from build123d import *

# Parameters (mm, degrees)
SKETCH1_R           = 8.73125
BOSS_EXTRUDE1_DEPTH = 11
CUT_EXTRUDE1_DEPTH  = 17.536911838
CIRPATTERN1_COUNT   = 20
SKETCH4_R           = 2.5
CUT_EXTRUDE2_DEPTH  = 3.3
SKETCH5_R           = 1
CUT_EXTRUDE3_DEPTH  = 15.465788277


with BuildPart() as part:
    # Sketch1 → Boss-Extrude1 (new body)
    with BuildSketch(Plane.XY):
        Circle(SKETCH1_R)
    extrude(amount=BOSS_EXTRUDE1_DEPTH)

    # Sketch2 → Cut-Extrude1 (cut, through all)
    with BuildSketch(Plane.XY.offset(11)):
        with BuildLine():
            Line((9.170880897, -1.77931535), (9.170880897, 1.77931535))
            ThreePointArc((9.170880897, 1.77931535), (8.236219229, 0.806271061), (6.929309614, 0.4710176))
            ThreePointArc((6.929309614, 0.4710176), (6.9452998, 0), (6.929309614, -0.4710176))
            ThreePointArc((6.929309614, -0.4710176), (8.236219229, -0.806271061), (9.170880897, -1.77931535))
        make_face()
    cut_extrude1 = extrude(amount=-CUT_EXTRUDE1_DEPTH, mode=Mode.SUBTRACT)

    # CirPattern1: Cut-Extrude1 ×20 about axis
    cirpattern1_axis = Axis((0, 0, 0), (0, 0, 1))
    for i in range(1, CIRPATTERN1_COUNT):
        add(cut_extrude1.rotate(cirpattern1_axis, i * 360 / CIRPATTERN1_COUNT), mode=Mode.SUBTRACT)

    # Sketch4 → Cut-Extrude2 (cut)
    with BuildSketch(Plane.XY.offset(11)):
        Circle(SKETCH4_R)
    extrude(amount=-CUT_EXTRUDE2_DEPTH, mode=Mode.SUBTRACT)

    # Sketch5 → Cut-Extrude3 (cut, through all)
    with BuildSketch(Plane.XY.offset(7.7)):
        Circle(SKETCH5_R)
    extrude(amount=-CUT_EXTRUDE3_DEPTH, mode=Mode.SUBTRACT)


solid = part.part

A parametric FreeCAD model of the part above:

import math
import FreeCAD as App
import Part
import Sketcher
Q = App.Units.Quantity

doc = App.newDocument("Part")
params = doc.addObject("Spreadsheet::Sheet", "Params")
for row, (alias, value) in enumerate([
    ("pad1_length", "11 mm"),
    ("sketch3_diameter", "5 mm"),
    ("pocket2_length", "3.3 mm"),
    ("sketch4_diameter", "2 mm"),
], start=1):
    params.set(f"A{row}", alias)
    params.set(f"B{row}", "=" + value)
    params.setAlias(f"B{row}", alias)

body = doc.addObject("PartDesign::Body", "Body")

# Sketch on XY plane
sketch1 = body.newObject("Sketcher::SketchObject", "Sketch")
sketch1.AttachmentSupport = (doc.getObject("XY_Plane"), [""])
sketch1.MapMode = "FlatFace"
sketch1.addGeometry(Part.Circle(App.Vector(0, 0, 0), App.Vector(0, 0, 1), 9), False)
sketch1.addConstraint([
    Sketcher.Constraint("Coincident", 0, 3, -1, 1),
    Sketcher.Constraint("Diameter", 0, Q("17.4625 mm")),
])
pad1 = body.newObject("PartDesign::Pad", "Pad")
pad1.Profile = sketch1
pad1.setExpression("Length", "Params.pad1_length")

# Sketch on XY plane
sketch2 = body.newObject("Sketcher::SketchObject", "Sketch001")
sketch2.AttachmentSupport = (doc.getObject("XY_Plane"), [""])
sketch2.MapMode = "FlatFace"
sketch2.AttachmentOffset = App.Placement(App.Vector(0, 0, 11), App.Rotation())
sketch2.addGeometry([
    Part.LineSegment(App.Vector(9.2, -1.8, 0), App.Vector(9.2, 1.8, 0)),
    Part.ArcOfCircle(Part.Circle(App.Vector(7, 2.9, 0), App.Vector(0, 0, 1), 2.5), math.radians(-91), math.radians(-28)),
    Part.ArcOfCircle(Part.Circle(App.Vector(0, 0, 0), App.Vector(0, 0, 1), 6.9), math.radians(-3.89), math.radians(3.89)),
    Part.ArcOfCircle(Part.Circle(App.Vector(7, -2.9, 0), App.Vector(0, 0, 1), 2.5), math.radians(28), math.radians(91)),
], False)
sketch2.addConstraint([
    Sketcher.Constraint("Coincident", 0, 2, 1, 2),
    Sketcher.Constraint("Coincident", 1, 1, 2, 2),
    Sketcher.Constraint("Coincident", 2, 1, 3, 2),
    Sketcher.Constraint("Coincident", 3, 1, 0, 1),
    Sketcher.Constraint("Vertical", 0),
    Sketcher.Constraint("Coincident", 2, 3, -1, 1),
    Sketcher.Constraint("Equal", 1, 3),
    Sketcher.Constraint("Symmetric", 1, 3, 3, 3, -1),
    Sketcher.Constraint("Radius", 2, Q("6.9453 mm")),
    Sketcher.Constraint("Radius", 1, Q("2.46509 mm")),
    Sketcher.Constraint("DistanceY", 0, 1, 0, 2, Q("3.558631 mm")),
    Sketcher.Constraint("DistanceY", -1, 1, 1, 3, Q("2.935268 mm")),
    Sketcher.Constraint("DistanceX", -1, 1, 0, 2, Q("9.170881 mm")),
])
pocket1 = body.newObject("PartDesign::Pocket", "Pocket")
pocket1.Profile = sketch2
pocket1.Type = "ThroughAll"
doc.recompute()

polarpattern = body.newObject("PartDesign::PolarPattern", "PolarPattern")
polarpattern.Originals = [pocket1]
polarpattern.Axis = (doc.getObject("Z_Axis"), [""])
polarpattern.Angle = 360
polarpattern.Occurrences = 20
body.Tip = polarpattern

# Sketch on XY plane
sketch3 = body.newObject("Sketcher::SketchObject", "Sketch002")
sketch3.AttachmentSupport = (doc.getObject("XY_Plane"), [""])
sketch3.MapMode = "FlatFace"
sketch3.AttachmentOffset = App.Placement(App.Vector(0, 0, 11), App.Rotation())
sketch3.addGeometry(Part.Circle(App.Vector(0, 0, 0), App.Vector(0, 0, 1), 2.5), False)
sketch3.addConstraint([
    Sketcher.Constraint("Coincident", 0, 3, -1, 1),
    Sketcher.Constraint("Diameter", 0, Q("5 mm")),
])
sketch3.setExpression("Constraints[1]", "Params.sketch3_diameter")
pocket2 = body.newObject("PartDesign::Pocket", "Pocket001")
pocket2.Profile = sketch3
pocket2.setExpression("Length", "Params.pocket2_length")

# Sketch on XY plane
sketch4 = body.newObject("Sketcher::SketchObject", "Sketch003")
sketch4.AttachmentSupport = (doc.getObject("XY_Plane"), [""])
sketch4.MapMode = "FlatFace"
sketch4.AttachmentOffset = App.Placement(App.Vector(0, 0, 7.7), App.Rotation())
sketch4.addGeometry(Part.Circle(App.Vector(0, 0, 0), App.Vector(0, 0, 1), 1), False)
sketch4.addConstraint([
    Sketcher.Constraint("Coincident", 0, 3, -1, 1),
    Sketcher.Constraint("Diameter", 0, Q("2 mm")),
])
sketch4.setExpression("Constraints[1]", "Params.sketch4_diameter")
pocket3 = body.newObject("PartDesign::Pocket", "Pocket002")
pocket3.Profile = sketch4
pocket3.Type = "ThroughAll"

doc.recompute()
